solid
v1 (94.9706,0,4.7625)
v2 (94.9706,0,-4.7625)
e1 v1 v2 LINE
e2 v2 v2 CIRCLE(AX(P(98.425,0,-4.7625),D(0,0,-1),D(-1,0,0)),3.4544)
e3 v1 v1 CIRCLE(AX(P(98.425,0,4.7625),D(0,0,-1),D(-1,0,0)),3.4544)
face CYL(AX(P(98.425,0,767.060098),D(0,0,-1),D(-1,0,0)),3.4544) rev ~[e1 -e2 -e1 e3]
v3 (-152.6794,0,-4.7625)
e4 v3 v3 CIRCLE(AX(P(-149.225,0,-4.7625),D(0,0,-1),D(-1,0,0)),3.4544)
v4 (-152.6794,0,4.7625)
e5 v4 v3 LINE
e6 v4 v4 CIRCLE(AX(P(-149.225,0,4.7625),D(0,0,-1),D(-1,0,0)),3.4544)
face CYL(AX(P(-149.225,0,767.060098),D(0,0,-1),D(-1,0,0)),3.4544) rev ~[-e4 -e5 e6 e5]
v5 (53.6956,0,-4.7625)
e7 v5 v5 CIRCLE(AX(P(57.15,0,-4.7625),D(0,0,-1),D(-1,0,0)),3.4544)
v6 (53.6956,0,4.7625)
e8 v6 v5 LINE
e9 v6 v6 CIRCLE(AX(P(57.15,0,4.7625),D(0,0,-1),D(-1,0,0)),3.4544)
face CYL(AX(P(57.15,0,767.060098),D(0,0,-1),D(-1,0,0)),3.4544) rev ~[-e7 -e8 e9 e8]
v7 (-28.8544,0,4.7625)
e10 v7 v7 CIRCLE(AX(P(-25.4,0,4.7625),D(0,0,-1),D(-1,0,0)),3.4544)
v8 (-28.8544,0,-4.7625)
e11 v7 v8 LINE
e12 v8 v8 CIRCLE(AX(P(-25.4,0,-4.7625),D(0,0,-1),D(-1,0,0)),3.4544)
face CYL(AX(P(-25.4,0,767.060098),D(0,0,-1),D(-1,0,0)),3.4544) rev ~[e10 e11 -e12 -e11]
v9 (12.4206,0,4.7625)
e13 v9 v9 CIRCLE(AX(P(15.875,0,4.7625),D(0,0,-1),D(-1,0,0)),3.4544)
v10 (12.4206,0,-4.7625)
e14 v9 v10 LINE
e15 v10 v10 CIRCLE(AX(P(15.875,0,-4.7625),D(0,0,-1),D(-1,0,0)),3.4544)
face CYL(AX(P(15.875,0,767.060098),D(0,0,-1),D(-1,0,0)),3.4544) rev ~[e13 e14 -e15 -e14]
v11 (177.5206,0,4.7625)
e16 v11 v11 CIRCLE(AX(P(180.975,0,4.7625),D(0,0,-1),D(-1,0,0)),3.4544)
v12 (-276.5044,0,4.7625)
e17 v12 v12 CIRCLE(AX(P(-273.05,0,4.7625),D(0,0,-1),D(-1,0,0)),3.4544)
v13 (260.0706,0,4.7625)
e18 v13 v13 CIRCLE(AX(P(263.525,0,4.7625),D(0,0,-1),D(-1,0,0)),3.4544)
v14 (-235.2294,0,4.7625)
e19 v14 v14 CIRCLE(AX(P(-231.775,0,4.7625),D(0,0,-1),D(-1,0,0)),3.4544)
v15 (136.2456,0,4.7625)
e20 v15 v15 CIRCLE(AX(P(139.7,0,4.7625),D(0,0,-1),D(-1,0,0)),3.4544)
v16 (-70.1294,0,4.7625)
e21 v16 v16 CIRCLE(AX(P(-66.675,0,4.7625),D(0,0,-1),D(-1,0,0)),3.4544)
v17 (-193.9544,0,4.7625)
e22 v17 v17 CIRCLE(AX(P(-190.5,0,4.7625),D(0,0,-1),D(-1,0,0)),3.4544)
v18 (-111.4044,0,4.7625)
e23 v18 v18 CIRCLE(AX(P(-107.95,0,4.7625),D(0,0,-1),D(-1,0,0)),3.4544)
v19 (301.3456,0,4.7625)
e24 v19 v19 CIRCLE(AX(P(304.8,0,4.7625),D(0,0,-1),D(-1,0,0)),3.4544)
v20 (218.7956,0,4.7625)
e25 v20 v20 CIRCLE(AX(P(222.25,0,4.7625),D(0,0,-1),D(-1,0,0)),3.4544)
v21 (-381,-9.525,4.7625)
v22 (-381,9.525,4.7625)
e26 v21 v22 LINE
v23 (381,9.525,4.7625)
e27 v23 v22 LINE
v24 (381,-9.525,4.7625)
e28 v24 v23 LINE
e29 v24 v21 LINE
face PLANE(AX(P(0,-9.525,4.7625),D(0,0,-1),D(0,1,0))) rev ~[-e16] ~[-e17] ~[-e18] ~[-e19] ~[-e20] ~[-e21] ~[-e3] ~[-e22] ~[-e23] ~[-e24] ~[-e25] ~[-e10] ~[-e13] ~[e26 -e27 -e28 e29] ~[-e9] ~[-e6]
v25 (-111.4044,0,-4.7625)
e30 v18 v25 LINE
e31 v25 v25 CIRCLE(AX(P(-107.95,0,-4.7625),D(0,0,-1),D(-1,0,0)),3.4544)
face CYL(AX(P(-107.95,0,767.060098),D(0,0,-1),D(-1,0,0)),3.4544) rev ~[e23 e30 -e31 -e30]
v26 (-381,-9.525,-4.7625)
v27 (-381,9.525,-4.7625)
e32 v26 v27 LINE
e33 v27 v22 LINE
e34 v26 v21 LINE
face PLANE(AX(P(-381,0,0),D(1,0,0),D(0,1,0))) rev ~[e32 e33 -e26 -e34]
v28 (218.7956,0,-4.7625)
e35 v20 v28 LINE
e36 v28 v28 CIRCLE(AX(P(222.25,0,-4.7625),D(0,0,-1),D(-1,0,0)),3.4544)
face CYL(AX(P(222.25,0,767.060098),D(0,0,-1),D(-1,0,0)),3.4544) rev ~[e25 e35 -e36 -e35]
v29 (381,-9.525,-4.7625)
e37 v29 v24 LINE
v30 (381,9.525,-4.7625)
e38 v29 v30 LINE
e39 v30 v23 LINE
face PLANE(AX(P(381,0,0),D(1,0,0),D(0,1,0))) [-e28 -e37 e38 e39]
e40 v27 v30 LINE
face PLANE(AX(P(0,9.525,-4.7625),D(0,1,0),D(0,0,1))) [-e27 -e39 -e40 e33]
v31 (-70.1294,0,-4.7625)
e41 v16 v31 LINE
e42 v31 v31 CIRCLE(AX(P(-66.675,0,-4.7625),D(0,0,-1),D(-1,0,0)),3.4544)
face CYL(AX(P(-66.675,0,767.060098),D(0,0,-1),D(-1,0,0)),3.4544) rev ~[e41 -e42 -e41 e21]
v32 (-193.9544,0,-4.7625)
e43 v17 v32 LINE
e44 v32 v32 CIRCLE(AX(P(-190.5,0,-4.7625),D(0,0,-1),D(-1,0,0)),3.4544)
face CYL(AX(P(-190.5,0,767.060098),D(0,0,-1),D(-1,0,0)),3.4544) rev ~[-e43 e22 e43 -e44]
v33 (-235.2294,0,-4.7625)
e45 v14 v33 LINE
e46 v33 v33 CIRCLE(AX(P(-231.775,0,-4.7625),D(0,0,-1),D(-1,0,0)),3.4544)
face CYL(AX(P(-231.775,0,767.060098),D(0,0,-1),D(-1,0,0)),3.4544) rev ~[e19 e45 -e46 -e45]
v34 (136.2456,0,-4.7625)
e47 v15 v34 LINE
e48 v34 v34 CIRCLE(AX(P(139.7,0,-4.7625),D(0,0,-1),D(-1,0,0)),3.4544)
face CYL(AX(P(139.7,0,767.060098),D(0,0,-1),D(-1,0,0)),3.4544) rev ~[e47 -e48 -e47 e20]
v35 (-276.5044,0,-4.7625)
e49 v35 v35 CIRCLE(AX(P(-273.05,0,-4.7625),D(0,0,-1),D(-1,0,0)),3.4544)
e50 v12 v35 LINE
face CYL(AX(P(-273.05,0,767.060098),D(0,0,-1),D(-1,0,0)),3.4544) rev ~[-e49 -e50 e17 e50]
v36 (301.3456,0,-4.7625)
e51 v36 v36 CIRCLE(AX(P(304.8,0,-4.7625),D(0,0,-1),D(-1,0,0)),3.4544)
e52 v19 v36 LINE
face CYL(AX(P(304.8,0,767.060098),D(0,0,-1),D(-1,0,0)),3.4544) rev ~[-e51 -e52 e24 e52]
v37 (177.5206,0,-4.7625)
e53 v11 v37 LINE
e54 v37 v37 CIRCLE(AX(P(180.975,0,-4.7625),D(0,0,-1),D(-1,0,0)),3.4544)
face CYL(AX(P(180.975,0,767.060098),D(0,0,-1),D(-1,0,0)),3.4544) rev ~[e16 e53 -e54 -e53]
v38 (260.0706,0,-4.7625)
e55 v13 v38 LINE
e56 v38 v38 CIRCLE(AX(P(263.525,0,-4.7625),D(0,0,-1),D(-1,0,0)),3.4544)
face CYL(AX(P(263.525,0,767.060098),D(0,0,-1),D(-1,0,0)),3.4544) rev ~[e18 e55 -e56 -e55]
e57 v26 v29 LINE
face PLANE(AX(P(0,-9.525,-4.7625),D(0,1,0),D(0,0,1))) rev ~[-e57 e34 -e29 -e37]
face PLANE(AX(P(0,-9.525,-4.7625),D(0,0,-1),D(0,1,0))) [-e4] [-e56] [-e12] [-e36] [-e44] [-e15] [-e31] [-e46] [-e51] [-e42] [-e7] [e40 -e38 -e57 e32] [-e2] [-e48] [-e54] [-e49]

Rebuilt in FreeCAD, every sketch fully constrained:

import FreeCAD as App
import Part
import Sketcher
Q = App.Units.Quantity


def add_polygon(sketch, points):
    """Adds a closed chain of lines whose ends are joined by coincident constraints."""
    first, n = sketch.GeometryCount, len(points)
    for a, b in zip(points, points[1:] + points[:1]):
        sketch.addGeometry(Part.LineSegment(App.Vector(*a, 0), App.Vector(*b, 0)), False)
    for i in range(n):
        sketch.addConstraint(Sketcher.Constraint("Coincident", first + i, 2, first + (i + 1) % n, 1))

doc = App.newDocument("Part")
body = doc.addObject("PartDesign::Body", "Body")

sketch1 = body.newObject("Sketcher::SketchObject", "Sketch")
sketch1.AttachmentSupport = (doc.getObject("YZ_Plane"), [""])
sketch1.MapMode = "FlatFace"
add_polygon(sketch1, [(-10, 5), (-10, -5), (10, -5), (10, 5)])
sketch1.addConstraint(Sketcher.Constraint("Vertical", 0))
sketch1.addConstraint(Sketcher.Constraint("Horizontal", 1))
sketch1.addConstraint(Sketcher.Constraint("Vertical", 2))
sketch1.addConstraint(Sketcher.Constraint("Horizontal", 3))
sketch1.addConstraint(Sketcher.Constraint("Symmetric", 0, 2, 2, 2, -1, 1))
sketch1.addConstraint(Sketcher.Constraint("DistanceX", 1, 1, 1, 2, Q("0.75 in")))
sketch1.addConstraint(Sketcher.Constraint("DistanceY", 0, 2, 0, 1, Q("0.375 in")))
pad1 = body.newObject("PartDesign::Pad", "Pad")
pad1.Profile = sketch1
pad1.Length = Q("30 in")
pad1.Midplane = True

sketch2 = body.newObject("Sketcher::SketchObject", "Sketch001")
sketch2.AttachmentSupport = (doc.getObject("XY_Plane"), [""])
sketch2.MapMode = "FlatFace"
sketch2.AttachmentOffset = App.Placement(App.Vector(0, 0, 0.1875 * 25.4), App.Rotation())
sketch2.addGeometry(Part.Circle(App.Vector(304.8, 0, 0), App.Vector(0, 0, 1), 3.5), False)
sketch2.addGeometry(Part.Circle(App.Vector(263.5, 0, 0), App.Vector(0, 0, 1), 3.5), False)
sketch2.addGeometry(Part.Circle(App.Vector(222.2, 0, 0), App.Vector(0, 0, 1), 3.5), False)
sketch2.addGeometry(Part.Circle(App.Vector(181, 0, 0), App.Vector(0, 0, 1), 3.5), False)
sketch2.addGeometry(Part.Circle(App.Vector(139.7, 0, 0), App.Vector(0, 0, 1), 3.5), False)
sketch2.addGeometry(Part.Circle(App.Vector(98.4, 0, 0), App.Vector(0, 0, 1), 3.5), False)
sketch2.addGeometry(Part.Circle(App.Vector(57.1, 0, 0), App.Vector(0, 0, 1), 3.5), False)
sketch2.addGeometry(Part.Circle(App.Vector(15.9, 0, 0), App.Vector(0, 0, 1), 3.5), False)
sketch2.addGeometry(Part.Circle(App.Vector(-25.4, 0, 0), App.Vector(0, 0, 1), 3.5), False)
sketch2.addGeometry(Part.Circle(App.Vector(-66.7, 0, 0), App.Vector(0, 0, 1), 3.5), False)
sketch2.addGeometry(Part.Circle(App.Vector(-108, 0, 0), App.Vector(0, 0, 1), 3.5), False)
sketch2.addGeometry(Part.Circle(App.Vector(-149.2, 0, 0), App.Vector(0, 0, 1), 3.5), False)
sketch2.addGeometry(Part.Circle(App.Vector(-190.5, 0, 0), App.Vector(0, 0, 1), 3.5), False)
sketch2.addGeometry(Part.Circle(App.Vector(-231.8, 0, 0), App.Vector(0, 0, 1), 3.5), False)
sketch2.addGeometry(Part.Circle(App.Vector(-273.1, 0, 0), App.Vector(0, 0, 1), 3.5), False)
sketch2.addConstraint(Sketcher.Constraint("Equal", 0, 1))
sketch2.addConstraint(Sketcher.Constraint("Equal", 1, 2))
sketch2.addConstraint(Sketcher.Constraint("Equal", 2, 3))
sketch2.addConstraint(Sketcher.Constraint("Equal", 3, 4))
sketch2.addConstraint(Sketcher.Constraint("Equal", 4, 5))
sketch2.addConstraint(Sketcher.Constraint("Equal", 5, 6))
sketch2.addConstraint(Sketcher.Constraint("Equal", 6, 7))
sketch2.addConstraint(Sketcher.Constraint("Equal", 7, 8))
sketch2.addConstraint(Sketcher.Constraint("Equal", 8, 9))
sketch2.addConstraint(Sketcher.Constraint("Equal", 9, 10))
sketch2.addConstraint(Sketcher.Constraint("Equal", 10, 11))
sketch2.addConstraint(Sketcher.Constraint("Equal", 11, 12))
sketch2.addConstraint(Sketcher.Constraint("Equal", 12, 13))
sketch2.addConstraint(Sketcher.Constraint("Equal", 13, 14))
sketch2.addConstraint(Sketcher.Constraint("PointOnObject", 0, 3, -1))
sketch2.addConstraint(Sketcher.Constraint("PointOnObject", 1, 3, -1))
sketch2.addConstraint(Sketcher.Constraint("PointOnObject", 2, 3, -1))
sketch2.addConstraint(Sketcher.Constraint("PointOnObject", 3, 3, -1))
sketch2.addConstraint(Sketcher.Constraint("PointOnObject", 4, 3, -1))
sketch2.addConstraint(Sketcher.Constraint("PointOnObject", 5, 3, -1))
sketch2.addConstraint(Sketcher.Constraint("PointOnObject", 6, 3, -1))
sketch2.addConstraint(Sketcher.Constraint("PointOnObject", 7, 3, -1))
sketch2.addConstraint(Sketcher.Constraint("PointOnObject", 8, 3, -1))
sketch2.addConstraint(Sketcher.Constraint("PointOnObject", 9, 3, -1))
sketch2.addConstraint(Sketcher.Constraint("PointOnObject", 10, 3, -1))
sketch2.addConstraint(Sketcher.Constraint("PointOnObject", 11, 3, -1))
sketch2.addConstraint(Sketcher.Constraint("PointOnObject", 12, 3, -1))
sketch2.addConstraint(Sketcher.Constraint("PointOnObject", 13, 3, -1))
sketch2.addConstraint(Sketcher.Constraint("PointOnObject", 14, 3, -1))
sketch2.addConstraint(Sketcher.Constraint("Diameter", 0, Q("0.272 in")))
sketch2.addConstraint(Sketcher.Constraint("DistanceX", -1, 1, 0, 3, Q("12 in")))
sketch2.addConstraint(Sketcher.Constraint("DistanceX", 8, 3, -1, 1, Q("1 in")))
sketch2.addConstraint(Sketcher.Constraint("DistanceX", -1, 1, 4, 3, Q("5.5 in")))
sketch2.addConstraint(Sketcher.Constraint("DistanceX", 12, 3, -1, 1, Q("7.5 in")))
sketch2.addConstraint(Sketcher.Constraint("DistanceX", 5, 3, 1, 3, Q("6.5 in")))
sketch2.addConstraint(Sketcher.Constraint("DistanceX", 6, 3, 2, 3, Q("6.5 in")))
sketch2.addConstraint(Sketcher.Constraint("DistanceX", 7, 3, 3, 3, Q("6.5 in")))
sketch2.addConstraint(Sketcher.Constraint("DistanceX", 9, 3, 5, 3, Q("6.5 in")))
sketch2.addConstraint(Sketcher.Constraint("DistanceX", 10, 3, 6, 3, Q("6.5 in")))
sketch2.addConstraint(Sketcher.Constraint("DistanceX", 11, 3, 7, 3, Q("6.5 in")))
sketch2.addConstraint(Sketcher.Constraint("DistanceX", 13, 3, 9, 3, Q("6.5 in")))
sketch2.addConstraint(Sketcher.Constraint("DistanceX", 14, 3, 10, 3, Q("6.5 in")))
sketch2.addConstraint(Sketcher.Constraint("DistanceX", -1, 1, 2, 3, Q("8.75 in")))
sketch2.addConstraint(Sketcher.Constraint("DistanceX", 3, 3, 1, 3, Q("3.25 in")))
sketch2.addConstraint(Sketcher.Constraint("DistanceX", -1, 1, 1, 3, Q("10.375 in")))
doc.recompute()
hole = body.newObject("PartDesign::Hole", "Hole")
hole.Profile = sketch2
hole.ThreadType = "None"
hole.Diameter = Q("0.272 in")
hole.DepthType = "ThroughAll"

doc.recompute()
